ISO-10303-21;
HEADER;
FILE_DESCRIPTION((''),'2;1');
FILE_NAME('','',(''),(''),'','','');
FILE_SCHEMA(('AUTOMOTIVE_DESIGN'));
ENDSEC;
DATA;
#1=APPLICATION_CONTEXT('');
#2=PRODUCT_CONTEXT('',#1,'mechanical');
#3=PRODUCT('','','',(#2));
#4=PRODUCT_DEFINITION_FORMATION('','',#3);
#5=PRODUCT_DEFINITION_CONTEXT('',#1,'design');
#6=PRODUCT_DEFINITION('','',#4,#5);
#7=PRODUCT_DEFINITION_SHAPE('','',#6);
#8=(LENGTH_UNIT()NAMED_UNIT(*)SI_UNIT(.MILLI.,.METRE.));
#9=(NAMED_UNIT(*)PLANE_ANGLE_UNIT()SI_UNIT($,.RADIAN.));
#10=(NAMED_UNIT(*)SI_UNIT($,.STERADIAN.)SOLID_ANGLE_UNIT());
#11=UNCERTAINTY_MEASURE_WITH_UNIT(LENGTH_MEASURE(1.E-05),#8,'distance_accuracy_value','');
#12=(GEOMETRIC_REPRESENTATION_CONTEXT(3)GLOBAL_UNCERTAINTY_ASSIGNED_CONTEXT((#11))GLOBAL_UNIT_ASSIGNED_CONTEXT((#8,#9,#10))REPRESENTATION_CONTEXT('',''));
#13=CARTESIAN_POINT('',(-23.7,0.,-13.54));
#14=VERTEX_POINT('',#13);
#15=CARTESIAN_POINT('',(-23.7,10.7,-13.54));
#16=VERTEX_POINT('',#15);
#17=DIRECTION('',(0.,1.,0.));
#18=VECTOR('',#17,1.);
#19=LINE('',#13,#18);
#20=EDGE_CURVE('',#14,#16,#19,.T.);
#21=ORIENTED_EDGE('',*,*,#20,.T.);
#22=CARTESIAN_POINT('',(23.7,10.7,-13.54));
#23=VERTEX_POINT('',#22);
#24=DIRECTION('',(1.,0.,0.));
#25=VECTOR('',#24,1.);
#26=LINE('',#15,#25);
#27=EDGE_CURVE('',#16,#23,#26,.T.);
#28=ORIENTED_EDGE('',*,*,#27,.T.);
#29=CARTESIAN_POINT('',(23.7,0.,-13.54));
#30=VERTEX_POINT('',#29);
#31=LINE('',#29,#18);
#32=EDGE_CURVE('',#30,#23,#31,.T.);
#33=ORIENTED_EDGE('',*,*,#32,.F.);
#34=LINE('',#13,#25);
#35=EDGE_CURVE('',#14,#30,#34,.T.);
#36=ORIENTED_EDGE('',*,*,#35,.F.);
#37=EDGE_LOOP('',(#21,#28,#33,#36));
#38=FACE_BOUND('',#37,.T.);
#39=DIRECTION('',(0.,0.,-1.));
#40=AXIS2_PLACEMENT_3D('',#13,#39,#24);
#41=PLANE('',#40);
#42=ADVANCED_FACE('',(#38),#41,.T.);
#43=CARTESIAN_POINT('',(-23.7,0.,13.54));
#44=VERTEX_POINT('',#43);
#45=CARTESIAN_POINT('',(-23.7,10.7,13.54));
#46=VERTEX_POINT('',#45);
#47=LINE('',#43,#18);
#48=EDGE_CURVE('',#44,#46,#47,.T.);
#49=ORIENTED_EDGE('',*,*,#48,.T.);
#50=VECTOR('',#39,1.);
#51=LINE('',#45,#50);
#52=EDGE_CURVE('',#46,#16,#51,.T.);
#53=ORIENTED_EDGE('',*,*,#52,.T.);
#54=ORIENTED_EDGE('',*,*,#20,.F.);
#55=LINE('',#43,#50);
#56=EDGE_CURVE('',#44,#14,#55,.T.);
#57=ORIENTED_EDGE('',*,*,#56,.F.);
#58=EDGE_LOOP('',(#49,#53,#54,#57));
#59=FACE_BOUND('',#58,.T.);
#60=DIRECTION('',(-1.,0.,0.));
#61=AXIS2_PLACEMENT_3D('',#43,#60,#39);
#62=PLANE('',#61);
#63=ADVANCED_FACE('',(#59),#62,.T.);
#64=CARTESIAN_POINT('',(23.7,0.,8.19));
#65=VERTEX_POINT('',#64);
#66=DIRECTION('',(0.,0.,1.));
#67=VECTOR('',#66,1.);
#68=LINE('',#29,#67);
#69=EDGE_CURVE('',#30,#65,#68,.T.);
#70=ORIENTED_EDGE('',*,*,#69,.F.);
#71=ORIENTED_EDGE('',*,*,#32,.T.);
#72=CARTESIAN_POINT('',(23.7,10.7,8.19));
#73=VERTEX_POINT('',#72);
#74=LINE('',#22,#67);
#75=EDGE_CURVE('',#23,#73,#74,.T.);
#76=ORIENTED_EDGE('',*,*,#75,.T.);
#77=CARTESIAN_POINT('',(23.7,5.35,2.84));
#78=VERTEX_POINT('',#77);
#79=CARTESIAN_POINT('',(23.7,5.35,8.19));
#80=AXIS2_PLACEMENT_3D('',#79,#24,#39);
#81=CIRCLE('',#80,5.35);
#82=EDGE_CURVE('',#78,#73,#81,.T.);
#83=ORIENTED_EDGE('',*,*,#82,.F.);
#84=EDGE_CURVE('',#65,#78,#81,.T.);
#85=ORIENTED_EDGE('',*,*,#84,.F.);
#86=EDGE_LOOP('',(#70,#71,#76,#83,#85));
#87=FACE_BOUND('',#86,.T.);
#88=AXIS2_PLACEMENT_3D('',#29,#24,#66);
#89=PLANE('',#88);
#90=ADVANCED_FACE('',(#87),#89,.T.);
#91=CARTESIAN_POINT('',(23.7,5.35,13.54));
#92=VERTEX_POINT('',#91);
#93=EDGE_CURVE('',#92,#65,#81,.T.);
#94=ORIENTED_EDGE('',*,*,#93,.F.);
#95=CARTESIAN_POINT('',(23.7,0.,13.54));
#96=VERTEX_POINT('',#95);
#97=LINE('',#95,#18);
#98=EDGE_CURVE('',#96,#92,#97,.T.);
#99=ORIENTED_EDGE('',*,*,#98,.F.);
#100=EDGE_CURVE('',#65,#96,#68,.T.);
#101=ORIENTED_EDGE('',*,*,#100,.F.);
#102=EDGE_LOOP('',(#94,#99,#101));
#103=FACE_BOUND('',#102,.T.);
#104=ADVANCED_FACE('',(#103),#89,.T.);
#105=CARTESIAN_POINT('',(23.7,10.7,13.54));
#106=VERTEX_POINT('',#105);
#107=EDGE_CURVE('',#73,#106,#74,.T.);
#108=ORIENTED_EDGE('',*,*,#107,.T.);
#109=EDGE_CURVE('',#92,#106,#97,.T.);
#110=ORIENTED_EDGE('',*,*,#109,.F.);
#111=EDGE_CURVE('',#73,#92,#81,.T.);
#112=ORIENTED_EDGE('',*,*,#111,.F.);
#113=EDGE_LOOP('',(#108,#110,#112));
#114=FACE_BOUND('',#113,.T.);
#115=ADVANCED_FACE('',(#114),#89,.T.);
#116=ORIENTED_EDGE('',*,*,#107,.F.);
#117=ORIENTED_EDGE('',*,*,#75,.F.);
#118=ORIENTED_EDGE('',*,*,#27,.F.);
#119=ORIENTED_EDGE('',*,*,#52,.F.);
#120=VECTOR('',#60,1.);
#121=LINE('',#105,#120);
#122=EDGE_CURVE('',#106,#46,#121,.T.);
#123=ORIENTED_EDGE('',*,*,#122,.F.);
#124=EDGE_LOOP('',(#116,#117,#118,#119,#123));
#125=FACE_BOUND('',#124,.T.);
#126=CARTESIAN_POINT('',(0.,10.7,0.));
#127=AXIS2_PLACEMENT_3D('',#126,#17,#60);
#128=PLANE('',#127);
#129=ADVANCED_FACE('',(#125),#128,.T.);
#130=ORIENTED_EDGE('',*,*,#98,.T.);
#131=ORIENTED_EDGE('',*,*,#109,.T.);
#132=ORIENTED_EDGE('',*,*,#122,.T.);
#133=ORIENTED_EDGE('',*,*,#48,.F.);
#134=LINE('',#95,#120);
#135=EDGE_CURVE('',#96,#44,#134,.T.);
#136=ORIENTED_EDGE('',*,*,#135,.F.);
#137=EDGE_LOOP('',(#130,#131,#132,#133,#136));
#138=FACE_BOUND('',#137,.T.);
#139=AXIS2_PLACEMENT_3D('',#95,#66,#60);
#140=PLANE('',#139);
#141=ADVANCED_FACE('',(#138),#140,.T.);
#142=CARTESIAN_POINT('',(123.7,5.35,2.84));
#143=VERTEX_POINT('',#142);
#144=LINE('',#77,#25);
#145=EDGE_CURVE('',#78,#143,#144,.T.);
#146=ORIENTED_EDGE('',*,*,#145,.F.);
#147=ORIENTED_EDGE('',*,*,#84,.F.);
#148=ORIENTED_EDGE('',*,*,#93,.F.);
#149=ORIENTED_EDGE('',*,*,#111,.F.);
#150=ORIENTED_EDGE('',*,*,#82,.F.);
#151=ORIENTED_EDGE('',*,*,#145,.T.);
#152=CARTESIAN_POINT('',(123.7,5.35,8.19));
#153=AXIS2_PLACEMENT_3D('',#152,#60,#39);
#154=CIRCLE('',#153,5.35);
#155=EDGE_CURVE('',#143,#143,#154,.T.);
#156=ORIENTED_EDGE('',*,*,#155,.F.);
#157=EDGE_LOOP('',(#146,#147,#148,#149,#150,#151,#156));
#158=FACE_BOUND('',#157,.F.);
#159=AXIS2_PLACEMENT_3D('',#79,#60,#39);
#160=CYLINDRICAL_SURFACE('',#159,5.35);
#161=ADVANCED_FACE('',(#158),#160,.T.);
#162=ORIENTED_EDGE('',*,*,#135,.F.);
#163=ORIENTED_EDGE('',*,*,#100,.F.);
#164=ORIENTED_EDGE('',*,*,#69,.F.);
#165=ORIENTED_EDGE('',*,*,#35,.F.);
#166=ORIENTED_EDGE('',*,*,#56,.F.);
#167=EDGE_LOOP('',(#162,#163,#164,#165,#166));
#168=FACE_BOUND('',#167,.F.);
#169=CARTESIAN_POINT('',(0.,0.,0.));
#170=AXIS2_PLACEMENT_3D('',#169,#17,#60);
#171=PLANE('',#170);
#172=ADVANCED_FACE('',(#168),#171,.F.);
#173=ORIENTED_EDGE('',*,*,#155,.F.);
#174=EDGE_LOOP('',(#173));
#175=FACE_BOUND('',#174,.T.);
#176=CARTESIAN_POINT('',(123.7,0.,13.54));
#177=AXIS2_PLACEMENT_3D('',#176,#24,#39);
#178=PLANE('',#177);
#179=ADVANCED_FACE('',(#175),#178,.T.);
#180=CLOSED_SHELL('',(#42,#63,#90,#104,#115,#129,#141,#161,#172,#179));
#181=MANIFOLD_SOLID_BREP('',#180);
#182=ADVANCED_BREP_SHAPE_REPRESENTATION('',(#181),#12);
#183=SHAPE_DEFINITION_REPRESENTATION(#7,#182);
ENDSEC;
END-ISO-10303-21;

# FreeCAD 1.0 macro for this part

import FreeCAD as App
import Part
import Sketcher
from FreeCAD import Vector
Q = App.Units.Quantity


def add_polygon(sketch, points):
    """Adds a closed chain of lines whose ends are joined by coincident constraints."""
    first, n = sketch.GeometryCount, len(points)
    for a, b in zip(points, points[1:] + points[:1]):
        sketch.addGeometry(Part.LineSegment(App.Vector(*a, 0), App.Vector(*b, 0)), False)
    for i in range(n):
        sketch.addConstraint(Sketcher.Constraint("Coincident", first + i, 2, first + (i + 1) % n, 1))

doc = App.newDocument("Part")
body = doc.addObject("PartDesign::Body", "Body")

sketch1 = doc.addObject("Sketcher::SketchObject", "Sketch")
body.addObject(sketch1)
sketch1.AttachmentSupport = (doc.XZ_Plane, [""])
sketch1.MapMode = "FlatFace"
add_polygon(sketch1, [(-24, 14), (24, 14), (24, -14), (-24, -14)])
sketch1.addConstraint([
    Sketcher.Constraint("Horizontal", 0),
    Sketcher.Constraint("Vertical", 1),
    Sketcher.Constraint("Horizontal", 2),
    Sketcher.Constraint("Vertical", 3),
    Sketcher.Constraint("Symmetric", 0, 2, 2, 2, -1, 1),
    Sketcher.Constraint("DistanceX", 0, 1, 0, 2, Q("47.4 mm")),
    Sketcher.Constraint("DistanceY", 1, 2, 1, 1, Q("27.08 mm")),
])
pad1 = doc.addObject("PartDesign::Pad", "Pad")
body.addObject(pad1)
pad1.Profile = sketch1
pad1.Length = 10.7
pad1.Reversed = True

sketch2 = doc.addObject("Sketcher::SketchObject", "Sketch001")
body.addObject(sketch2)
sketch2.AttachmentSupport = (doc.YZ_Plane, [""])
sketch2.MapMode = "FlatFace"
sketch2.AttachmentOffset = App.Placement(Vector(0, 0, 23.7), App.Rotation())
sketch2.addGeometry(Part.Circle(Vector(5, 8, 0), Vector(0, 0, 1), 5), False)
sketch2.addConstraint([
    Sketcher.Constraint("Diameter", 0, Q("10.7 mm")),
    Sketcher.Constraint("DistanceX", -1, 1, 0, 3, Q("5.35 mm")),
    Sketcher.Constraint("DistanceY", -1, 1, 0, 3, Q("8.19 mm")),
])
pad2 = doc.addObject("PartDesign::Pad", "Pad001")
body.addObject(pad2)
pad2.Profile = sketch2
pad2.Length = 100

doc.recompute()
